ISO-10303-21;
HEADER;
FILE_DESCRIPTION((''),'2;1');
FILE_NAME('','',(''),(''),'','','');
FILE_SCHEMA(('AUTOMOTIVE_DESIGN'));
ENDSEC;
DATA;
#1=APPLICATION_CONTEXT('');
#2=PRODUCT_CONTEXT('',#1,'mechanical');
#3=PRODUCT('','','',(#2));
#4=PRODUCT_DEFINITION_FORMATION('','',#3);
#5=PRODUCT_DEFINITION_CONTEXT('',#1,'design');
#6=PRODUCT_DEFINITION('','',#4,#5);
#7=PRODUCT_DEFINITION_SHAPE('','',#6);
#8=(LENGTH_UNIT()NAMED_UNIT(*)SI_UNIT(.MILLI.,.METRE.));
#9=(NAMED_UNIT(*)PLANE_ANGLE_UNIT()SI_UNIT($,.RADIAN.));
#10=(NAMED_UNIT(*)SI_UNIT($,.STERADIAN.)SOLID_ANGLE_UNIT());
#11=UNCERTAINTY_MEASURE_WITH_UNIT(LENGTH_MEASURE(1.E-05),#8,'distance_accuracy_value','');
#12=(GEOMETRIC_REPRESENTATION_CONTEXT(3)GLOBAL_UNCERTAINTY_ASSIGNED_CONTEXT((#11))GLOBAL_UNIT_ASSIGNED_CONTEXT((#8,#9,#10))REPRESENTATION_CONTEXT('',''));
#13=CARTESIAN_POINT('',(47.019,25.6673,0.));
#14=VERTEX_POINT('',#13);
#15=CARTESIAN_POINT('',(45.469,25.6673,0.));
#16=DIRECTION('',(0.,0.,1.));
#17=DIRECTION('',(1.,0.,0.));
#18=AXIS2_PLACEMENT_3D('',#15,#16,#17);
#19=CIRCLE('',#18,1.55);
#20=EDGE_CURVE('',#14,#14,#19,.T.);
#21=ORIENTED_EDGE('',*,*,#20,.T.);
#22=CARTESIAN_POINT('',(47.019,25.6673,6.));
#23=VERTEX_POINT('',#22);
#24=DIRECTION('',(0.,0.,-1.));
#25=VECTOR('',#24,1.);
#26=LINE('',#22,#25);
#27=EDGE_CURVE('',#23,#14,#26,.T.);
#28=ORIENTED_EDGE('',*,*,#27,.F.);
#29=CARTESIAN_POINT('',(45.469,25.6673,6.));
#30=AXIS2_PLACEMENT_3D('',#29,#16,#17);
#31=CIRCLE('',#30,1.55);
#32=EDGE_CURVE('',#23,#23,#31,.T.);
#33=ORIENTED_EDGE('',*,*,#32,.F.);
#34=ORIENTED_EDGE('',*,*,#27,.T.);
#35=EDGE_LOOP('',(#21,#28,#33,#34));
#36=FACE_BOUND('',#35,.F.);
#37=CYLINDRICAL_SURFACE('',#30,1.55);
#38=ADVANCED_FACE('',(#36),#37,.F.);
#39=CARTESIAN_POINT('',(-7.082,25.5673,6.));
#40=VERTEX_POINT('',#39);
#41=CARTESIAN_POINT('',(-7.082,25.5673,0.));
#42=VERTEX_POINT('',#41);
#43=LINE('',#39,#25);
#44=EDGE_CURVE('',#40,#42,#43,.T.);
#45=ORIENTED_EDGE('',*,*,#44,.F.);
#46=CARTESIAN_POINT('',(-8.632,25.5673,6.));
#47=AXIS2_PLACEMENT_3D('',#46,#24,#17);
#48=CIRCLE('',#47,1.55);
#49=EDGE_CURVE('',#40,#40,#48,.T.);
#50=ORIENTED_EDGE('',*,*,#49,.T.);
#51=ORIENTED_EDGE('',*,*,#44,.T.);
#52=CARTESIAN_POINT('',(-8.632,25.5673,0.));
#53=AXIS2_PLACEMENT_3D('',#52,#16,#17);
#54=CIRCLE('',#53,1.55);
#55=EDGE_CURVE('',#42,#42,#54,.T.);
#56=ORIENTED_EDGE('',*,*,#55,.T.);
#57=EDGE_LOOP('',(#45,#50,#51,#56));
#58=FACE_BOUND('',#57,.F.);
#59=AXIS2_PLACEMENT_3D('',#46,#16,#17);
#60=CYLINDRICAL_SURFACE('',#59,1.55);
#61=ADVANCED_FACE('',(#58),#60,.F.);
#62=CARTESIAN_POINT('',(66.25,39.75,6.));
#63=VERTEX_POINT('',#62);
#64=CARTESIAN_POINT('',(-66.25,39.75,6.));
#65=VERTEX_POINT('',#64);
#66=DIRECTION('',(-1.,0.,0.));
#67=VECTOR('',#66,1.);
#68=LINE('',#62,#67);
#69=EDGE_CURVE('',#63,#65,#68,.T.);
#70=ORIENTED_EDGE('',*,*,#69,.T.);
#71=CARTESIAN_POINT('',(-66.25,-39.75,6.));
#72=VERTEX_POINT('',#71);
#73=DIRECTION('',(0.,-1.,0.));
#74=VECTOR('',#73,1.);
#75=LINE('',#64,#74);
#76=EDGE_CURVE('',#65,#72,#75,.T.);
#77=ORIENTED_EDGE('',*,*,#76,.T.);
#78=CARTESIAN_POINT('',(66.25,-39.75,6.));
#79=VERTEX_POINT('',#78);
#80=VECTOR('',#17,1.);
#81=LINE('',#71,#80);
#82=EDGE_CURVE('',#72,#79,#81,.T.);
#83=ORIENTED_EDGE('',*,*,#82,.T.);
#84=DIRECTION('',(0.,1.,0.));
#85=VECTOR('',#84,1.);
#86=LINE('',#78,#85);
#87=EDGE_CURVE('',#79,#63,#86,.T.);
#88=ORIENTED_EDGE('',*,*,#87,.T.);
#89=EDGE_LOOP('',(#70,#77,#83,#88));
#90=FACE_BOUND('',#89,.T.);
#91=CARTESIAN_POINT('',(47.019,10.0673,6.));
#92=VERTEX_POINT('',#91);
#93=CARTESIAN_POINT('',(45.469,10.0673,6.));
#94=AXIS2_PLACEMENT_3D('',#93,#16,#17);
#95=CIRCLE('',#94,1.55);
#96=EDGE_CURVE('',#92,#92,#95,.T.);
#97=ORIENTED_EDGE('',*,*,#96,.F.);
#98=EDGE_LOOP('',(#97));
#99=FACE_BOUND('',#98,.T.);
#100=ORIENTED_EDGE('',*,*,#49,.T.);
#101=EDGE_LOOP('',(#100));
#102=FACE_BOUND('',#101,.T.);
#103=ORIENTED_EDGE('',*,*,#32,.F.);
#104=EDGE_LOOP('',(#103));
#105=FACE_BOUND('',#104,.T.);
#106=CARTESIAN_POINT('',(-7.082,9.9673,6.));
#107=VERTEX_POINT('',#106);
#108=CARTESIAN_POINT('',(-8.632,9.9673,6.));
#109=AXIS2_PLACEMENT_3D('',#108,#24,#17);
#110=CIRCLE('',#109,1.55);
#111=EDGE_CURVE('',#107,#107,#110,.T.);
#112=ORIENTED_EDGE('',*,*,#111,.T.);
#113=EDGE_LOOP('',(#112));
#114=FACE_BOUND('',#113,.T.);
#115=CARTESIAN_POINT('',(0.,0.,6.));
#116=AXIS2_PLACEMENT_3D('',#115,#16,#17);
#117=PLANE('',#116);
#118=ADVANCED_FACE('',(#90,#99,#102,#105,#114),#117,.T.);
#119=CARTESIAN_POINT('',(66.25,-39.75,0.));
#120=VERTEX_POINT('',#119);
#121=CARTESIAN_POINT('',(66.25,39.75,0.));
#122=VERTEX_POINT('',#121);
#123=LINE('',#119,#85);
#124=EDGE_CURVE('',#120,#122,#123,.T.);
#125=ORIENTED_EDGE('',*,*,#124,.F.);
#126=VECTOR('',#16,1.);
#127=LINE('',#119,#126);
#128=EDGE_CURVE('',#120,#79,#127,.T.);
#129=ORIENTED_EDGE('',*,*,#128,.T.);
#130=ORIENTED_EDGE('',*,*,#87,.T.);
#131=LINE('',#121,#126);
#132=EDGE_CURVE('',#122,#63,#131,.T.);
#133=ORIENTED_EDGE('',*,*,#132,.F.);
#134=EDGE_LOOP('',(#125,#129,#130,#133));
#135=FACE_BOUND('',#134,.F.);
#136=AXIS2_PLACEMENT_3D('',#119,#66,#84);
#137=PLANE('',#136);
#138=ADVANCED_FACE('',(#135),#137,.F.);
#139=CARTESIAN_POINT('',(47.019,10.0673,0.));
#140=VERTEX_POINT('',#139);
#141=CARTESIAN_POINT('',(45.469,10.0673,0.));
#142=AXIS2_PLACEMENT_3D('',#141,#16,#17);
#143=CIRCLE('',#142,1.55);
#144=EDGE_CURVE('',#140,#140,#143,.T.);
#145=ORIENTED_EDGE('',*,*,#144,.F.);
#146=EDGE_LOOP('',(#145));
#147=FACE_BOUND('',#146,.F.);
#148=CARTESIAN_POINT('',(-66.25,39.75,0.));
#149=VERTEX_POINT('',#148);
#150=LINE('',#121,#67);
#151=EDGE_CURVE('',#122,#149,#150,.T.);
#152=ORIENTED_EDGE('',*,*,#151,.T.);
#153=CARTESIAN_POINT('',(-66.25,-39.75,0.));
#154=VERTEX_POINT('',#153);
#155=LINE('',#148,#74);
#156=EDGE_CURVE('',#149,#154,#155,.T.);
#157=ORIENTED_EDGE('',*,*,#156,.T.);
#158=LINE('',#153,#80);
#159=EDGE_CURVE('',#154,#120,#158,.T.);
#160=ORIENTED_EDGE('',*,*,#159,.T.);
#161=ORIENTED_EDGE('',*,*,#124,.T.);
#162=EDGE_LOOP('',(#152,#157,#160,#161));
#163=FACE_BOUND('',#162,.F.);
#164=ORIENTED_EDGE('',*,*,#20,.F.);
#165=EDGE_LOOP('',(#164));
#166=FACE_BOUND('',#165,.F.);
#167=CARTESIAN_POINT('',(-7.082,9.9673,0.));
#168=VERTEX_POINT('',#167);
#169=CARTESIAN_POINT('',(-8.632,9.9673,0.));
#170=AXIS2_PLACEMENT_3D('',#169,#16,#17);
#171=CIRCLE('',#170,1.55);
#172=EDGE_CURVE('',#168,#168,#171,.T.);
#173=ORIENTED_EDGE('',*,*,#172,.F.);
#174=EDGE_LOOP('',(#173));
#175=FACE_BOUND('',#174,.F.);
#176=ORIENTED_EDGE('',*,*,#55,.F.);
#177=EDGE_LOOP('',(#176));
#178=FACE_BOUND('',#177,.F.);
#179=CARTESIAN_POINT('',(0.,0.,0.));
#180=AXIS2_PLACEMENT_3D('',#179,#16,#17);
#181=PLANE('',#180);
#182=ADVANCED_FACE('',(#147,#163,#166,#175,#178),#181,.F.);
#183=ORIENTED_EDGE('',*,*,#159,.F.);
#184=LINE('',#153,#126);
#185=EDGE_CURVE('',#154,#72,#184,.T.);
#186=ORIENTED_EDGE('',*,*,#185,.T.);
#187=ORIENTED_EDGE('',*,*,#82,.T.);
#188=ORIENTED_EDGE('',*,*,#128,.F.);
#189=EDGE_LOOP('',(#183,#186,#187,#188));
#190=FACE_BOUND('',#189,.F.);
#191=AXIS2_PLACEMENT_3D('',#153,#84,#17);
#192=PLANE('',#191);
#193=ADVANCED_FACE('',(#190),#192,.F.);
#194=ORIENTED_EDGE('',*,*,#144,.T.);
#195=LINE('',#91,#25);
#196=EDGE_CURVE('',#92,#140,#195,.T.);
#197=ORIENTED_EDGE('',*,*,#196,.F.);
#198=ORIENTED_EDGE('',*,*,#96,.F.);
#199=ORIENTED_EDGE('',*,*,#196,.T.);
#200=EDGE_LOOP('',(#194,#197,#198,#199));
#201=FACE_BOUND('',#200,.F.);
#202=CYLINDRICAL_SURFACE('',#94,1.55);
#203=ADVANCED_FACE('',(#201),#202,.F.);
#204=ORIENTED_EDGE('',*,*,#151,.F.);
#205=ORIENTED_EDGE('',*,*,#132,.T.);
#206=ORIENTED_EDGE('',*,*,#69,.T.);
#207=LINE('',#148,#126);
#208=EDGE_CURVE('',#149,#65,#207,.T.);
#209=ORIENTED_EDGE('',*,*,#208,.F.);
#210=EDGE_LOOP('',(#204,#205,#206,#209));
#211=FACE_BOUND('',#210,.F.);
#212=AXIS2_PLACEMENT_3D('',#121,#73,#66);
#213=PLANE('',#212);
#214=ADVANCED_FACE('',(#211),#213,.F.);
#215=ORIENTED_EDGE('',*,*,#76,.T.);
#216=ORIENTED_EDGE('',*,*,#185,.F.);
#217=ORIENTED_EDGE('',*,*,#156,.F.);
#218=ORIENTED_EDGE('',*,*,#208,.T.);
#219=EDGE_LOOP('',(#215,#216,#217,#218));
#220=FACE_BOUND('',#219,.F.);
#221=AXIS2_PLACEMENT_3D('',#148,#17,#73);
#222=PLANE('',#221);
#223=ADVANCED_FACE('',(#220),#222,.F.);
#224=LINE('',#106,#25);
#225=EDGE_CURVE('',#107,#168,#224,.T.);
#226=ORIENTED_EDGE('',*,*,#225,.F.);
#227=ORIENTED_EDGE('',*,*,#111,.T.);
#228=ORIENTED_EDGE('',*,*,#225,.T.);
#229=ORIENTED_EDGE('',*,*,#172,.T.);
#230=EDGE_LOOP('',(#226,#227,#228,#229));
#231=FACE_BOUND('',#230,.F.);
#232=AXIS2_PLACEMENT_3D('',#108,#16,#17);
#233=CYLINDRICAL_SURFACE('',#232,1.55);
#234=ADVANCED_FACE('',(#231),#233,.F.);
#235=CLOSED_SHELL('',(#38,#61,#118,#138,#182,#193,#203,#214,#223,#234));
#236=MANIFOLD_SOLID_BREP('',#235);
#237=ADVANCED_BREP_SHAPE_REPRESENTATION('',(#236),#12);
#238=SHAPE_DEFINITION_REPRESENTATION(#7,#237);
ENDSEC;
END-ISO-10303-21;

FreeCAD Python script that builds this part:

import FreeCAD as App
import Part
import Sketcher

doc = App.newDocument("Part")
body = doc.addObject("PartDesign::Body", "Body")

# Sketch on XY plane
sketch1 = body.newObject("Sketcher::SketchObject", "Sketch")
sketch1.AttachmentSupport = (doc.getObject("XY_Plane"), [""])
sketch1.MapMode = "FlatFace"
sketch1.addGeometry(Part.LineSegment(App.Vector(-66, -40, 0), App.Vector(66, -40, 0)), False)
sketch1.addGeometry(Part.LineSegment(App.Vector(66, -40, 0), App.Vector(66, 40, 0)), False)
sketch1.addGeometry(Part.LineSegment(App.Vector(66, 40, 0), App.Vector(-66, 40, 0)), False)
sketch1.addGeometry(Part.LineSegment(App.Vector(-66, 40, 0), App.Vector(-66, -40, 0)), False)
sketch1.addConstraint(Sketcher.Constraint("Coincident", 0, 2, 1, 1))
sketch1.addConstraint(Sketcher.Constraint("Coincident", 1, 2, 2, 1))
sketch1.addConstraint(Sketcher.Constraint("Coincident", 2, 2, 3, 1))
sketch1.addConstraint(Sketcher.Constraint("Coincident", 3, 2, 0, 1))
sketch1.addConstraint(Sketcher.Constraint("Horizontal", 0))
sketch1.addConstraint(Sketcher.Constraint("Vertical", 1))
sketch1.addConstraint(Sketcher.Constraint("Horizontal", 2))
sketch1.addConstraint(Sketcher.Constraint("Vertical", 3))
sketch1.addConstraint(Sketcher.Constraint("Symmetric", 0, 2, 2, 2, -1, 1))
sketch1.addConstraint(Sketcher.Constraint("DistanceX", 0, 1, 0, 2, 132.5))
sketch1.addConstraint(Sketcher.Constraint("DistanceY", 1, 1, 1, 2, 79.5))
pad1 = body.newObject("PartDesign::Pad", "Pad")
pad1.Profile = sketch1
pad1.Length = 6

# Sketch on XY plane
sketch2 = body.newObject("Sketcher::SketchObject", "Sketch001")
sketch2.AttachmentSupport = (doc.getObject("XY_Plane"), [""])
sketch2.MapMode = "FlatFace"
sketch2.AttachmentOffset = App.Placement(App.Vector(0, 0, 6), App.Rotation())
sketch2.addGeometry(Part.Circle(App.Vector(-8.6, 25.6, 0), App.Vector(0, 0, 1), 1.6), False)
sketch2.addGeometry(Part.Circle(App.Vector(-8.6, 10, 0), App.Vector(0, 0, 1), 1.6), False)
sketch2.addGeometry(Part.Circle(App.Vector(45.5, 10.1, 0), App.Vector(0, 0, 1), 1.6), False)
sketch2.addGeometry(Part.Circle(App.Vector(45.5, 25.7, 0), App.Vector(0, 0, 1), 1.6), False)
sketch2.addConstraint(Sketcher.Constraint("Equal", 0, 1))
sketch2.addConstraint(Sketcher.Constraint("Equal", 1, 2))
sketch2.addConstraint(Sketcher.Constraint("Equal", 2, 3))
sketch2.addConstraint(Sketcher.Constraint("Vertical", 0, 3, 1, 3))
sketch2.addConstraint(Sketcher.Constraint("Vertical", 2, 3, 3, 3))
sketch2.addConstraint(Sketcher.Constraint("Diameter", 0, 3.1))
sketch2.addConstraint(Sketcher.Constraint("DistanceY", 1, 3, 0, 3, 15.6))
sketch2.addConstraint(Sketcher.Constraint("DistanceY", 1, 3, 2, 3, 0.1))
sketch2.addConstraint(Sketcher.Constraint("DistanceY", 2, 3, 3, 3, 15.6))
sketch2.addConstraint(Sketcher.Constraint("DistanceX", 0, 3, -1, 1, 8.632))
sketch2.addConstraint(Sketcher.Constraint("DistanceX", -1, 1, 2, 3, 45.469))
sketch2.addConstraint(Sketcher.Constraint("DistanceY", -1, 1, 0, 3, 25.5673))
pocket1 = body.newObject("PartDesign::Pocket", "Pocket")
pocket1.Profile = sketch2
pocket1.Length = 6

doc.recompute()
